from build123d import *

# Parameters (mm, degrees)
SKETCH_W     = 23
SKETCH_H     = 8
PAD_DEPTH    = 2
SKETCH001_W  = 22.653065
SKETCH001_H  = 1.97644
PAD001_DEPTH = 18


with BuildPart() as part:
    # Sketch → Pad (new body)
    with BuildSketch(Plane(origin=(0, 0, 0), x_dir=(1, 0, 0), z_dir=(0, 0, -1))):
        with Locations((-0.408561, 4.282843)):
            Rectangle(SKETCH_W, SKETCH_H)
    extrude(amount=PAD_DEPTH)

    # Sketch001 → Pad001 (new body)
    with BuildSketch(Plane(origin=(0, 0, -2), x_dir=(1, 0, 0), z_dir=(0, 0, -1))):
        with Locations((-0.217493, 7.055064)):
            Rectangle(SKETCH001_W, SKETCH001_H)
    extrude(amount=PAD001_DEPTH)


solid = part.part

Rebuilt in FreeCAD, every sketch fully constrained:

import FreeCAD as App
import Part
import Sketcher

V = App.Vector


def add_polygon(sketch, points):
    """Adds a closed chain of lines whose ends are joined by coincident constraints."""
    first, n = sketch.GeometryCount, len(points)
    for a, b in zip(points, points[1:] + points[:1]):
        sketch.addGeometry(Part.LineSegment(App.Vector(*a, 0), App.Vector(*b, 0)), False)
    for i in range(n):
        sketch.addConstraint(Sketcher.Constraint("Coincident", first + i, 2, first + (i + 1) % n, 1))

doc = App.newDocument("Part")
body = doc.addObject("PartDesign::Body", "Body")

# Sketch on XY plane
sketch1 = body.newObject("Sketcher::SketchObject", "Sketch")
sketch1.AttachmentSupport = (doc.getObject("XY_Plane"), [""])
sketch1.MapMode = "FlatFace"
add_polygon(sketch1, [(-12, -8), (-12, 0), (11, 0), (11, -8)])  # lines 0-3
sketch1.addConstraint(Sketcher.Constraint("Vertical", 0))
sketch1.addConstraint(Sketcher.Constraint("Horizontal", 1))
sketch1.addConstraint(Sketcher.Constraint("Vertical", 2))
sketch1.addConstraint(Sketcher.Constraint("Horizontal", 3))
sketch1.addConstraint(Sketcher.Constraint("DistanceX", 1, 1, 1, 2, 23.0))
sketch1.addConstraint(Sketcher.Constraint("DistanceY", 0, 1, 0, 2, 8.0))
sketch1.addConstraint(Sketcher.Constraint("DistanceX", 0, 2, -1, 1, 11.908561))
sketch1.addConstraint(Sketcher.Constraint("DistanceY", 0, 2, -1, 1, 0.282843))
pad1 = body.newObject("PartDesign::Pad", "Pad")
pad1.Profile = sketch1
pad1.Length = 2
pad1.Reversed = True

# Sketch on XY plane
sketch2 = body.newObject("Sketcher::SketchObject", "Sketch001")
sketch2.AttachmentSupport = (doc.getObject("XY_Plane"), [""])
sketch2.MapMode = "FlatFace"
sketch2.AttachmentOffset = App.Placement(V(0, 0, -2), App.Rotation())
add_polygon(sketch2, [(-11.5, -8), (-11.5, -6.1), (11.1, -6.1), (11.1, -8)])  # lines 0-3
sketch2.addConstraint(Sketcher.Constraint("Vertical", 0))
sketch2.addConstraint(Sketcher.Constraint("Horizontal", 1))
sketch2.addConstraint(Sketcher.Constraint("Vertical", 2))
sketch2.addConstraint(Sketcher.Constraint("Horizontal", 3))
sketch2.addConstraint(Sketcher.Constraint("DistanceY", 0, 1, 0, 2, 1.97644))
sketch2.addConstraint(Sketcher.Constraint("DistanceX", 1, 1, 1, 2, 22.653065))
sketch2.addConstraint(Sketcher.Constraint("DistanceX", -1, 1, 1, 2, 11.109039))
sketch2.addConstraint(Sketcher.Constraint("DistanceY", 0, 2, -1, 1, 6.066844))
pad2 = body.newObject("PartDesign::Pad", "Pad001")
pad2.Profile = sketch2
pad2.Length = 18
pad2.Reversed = True

doc.recompute()
